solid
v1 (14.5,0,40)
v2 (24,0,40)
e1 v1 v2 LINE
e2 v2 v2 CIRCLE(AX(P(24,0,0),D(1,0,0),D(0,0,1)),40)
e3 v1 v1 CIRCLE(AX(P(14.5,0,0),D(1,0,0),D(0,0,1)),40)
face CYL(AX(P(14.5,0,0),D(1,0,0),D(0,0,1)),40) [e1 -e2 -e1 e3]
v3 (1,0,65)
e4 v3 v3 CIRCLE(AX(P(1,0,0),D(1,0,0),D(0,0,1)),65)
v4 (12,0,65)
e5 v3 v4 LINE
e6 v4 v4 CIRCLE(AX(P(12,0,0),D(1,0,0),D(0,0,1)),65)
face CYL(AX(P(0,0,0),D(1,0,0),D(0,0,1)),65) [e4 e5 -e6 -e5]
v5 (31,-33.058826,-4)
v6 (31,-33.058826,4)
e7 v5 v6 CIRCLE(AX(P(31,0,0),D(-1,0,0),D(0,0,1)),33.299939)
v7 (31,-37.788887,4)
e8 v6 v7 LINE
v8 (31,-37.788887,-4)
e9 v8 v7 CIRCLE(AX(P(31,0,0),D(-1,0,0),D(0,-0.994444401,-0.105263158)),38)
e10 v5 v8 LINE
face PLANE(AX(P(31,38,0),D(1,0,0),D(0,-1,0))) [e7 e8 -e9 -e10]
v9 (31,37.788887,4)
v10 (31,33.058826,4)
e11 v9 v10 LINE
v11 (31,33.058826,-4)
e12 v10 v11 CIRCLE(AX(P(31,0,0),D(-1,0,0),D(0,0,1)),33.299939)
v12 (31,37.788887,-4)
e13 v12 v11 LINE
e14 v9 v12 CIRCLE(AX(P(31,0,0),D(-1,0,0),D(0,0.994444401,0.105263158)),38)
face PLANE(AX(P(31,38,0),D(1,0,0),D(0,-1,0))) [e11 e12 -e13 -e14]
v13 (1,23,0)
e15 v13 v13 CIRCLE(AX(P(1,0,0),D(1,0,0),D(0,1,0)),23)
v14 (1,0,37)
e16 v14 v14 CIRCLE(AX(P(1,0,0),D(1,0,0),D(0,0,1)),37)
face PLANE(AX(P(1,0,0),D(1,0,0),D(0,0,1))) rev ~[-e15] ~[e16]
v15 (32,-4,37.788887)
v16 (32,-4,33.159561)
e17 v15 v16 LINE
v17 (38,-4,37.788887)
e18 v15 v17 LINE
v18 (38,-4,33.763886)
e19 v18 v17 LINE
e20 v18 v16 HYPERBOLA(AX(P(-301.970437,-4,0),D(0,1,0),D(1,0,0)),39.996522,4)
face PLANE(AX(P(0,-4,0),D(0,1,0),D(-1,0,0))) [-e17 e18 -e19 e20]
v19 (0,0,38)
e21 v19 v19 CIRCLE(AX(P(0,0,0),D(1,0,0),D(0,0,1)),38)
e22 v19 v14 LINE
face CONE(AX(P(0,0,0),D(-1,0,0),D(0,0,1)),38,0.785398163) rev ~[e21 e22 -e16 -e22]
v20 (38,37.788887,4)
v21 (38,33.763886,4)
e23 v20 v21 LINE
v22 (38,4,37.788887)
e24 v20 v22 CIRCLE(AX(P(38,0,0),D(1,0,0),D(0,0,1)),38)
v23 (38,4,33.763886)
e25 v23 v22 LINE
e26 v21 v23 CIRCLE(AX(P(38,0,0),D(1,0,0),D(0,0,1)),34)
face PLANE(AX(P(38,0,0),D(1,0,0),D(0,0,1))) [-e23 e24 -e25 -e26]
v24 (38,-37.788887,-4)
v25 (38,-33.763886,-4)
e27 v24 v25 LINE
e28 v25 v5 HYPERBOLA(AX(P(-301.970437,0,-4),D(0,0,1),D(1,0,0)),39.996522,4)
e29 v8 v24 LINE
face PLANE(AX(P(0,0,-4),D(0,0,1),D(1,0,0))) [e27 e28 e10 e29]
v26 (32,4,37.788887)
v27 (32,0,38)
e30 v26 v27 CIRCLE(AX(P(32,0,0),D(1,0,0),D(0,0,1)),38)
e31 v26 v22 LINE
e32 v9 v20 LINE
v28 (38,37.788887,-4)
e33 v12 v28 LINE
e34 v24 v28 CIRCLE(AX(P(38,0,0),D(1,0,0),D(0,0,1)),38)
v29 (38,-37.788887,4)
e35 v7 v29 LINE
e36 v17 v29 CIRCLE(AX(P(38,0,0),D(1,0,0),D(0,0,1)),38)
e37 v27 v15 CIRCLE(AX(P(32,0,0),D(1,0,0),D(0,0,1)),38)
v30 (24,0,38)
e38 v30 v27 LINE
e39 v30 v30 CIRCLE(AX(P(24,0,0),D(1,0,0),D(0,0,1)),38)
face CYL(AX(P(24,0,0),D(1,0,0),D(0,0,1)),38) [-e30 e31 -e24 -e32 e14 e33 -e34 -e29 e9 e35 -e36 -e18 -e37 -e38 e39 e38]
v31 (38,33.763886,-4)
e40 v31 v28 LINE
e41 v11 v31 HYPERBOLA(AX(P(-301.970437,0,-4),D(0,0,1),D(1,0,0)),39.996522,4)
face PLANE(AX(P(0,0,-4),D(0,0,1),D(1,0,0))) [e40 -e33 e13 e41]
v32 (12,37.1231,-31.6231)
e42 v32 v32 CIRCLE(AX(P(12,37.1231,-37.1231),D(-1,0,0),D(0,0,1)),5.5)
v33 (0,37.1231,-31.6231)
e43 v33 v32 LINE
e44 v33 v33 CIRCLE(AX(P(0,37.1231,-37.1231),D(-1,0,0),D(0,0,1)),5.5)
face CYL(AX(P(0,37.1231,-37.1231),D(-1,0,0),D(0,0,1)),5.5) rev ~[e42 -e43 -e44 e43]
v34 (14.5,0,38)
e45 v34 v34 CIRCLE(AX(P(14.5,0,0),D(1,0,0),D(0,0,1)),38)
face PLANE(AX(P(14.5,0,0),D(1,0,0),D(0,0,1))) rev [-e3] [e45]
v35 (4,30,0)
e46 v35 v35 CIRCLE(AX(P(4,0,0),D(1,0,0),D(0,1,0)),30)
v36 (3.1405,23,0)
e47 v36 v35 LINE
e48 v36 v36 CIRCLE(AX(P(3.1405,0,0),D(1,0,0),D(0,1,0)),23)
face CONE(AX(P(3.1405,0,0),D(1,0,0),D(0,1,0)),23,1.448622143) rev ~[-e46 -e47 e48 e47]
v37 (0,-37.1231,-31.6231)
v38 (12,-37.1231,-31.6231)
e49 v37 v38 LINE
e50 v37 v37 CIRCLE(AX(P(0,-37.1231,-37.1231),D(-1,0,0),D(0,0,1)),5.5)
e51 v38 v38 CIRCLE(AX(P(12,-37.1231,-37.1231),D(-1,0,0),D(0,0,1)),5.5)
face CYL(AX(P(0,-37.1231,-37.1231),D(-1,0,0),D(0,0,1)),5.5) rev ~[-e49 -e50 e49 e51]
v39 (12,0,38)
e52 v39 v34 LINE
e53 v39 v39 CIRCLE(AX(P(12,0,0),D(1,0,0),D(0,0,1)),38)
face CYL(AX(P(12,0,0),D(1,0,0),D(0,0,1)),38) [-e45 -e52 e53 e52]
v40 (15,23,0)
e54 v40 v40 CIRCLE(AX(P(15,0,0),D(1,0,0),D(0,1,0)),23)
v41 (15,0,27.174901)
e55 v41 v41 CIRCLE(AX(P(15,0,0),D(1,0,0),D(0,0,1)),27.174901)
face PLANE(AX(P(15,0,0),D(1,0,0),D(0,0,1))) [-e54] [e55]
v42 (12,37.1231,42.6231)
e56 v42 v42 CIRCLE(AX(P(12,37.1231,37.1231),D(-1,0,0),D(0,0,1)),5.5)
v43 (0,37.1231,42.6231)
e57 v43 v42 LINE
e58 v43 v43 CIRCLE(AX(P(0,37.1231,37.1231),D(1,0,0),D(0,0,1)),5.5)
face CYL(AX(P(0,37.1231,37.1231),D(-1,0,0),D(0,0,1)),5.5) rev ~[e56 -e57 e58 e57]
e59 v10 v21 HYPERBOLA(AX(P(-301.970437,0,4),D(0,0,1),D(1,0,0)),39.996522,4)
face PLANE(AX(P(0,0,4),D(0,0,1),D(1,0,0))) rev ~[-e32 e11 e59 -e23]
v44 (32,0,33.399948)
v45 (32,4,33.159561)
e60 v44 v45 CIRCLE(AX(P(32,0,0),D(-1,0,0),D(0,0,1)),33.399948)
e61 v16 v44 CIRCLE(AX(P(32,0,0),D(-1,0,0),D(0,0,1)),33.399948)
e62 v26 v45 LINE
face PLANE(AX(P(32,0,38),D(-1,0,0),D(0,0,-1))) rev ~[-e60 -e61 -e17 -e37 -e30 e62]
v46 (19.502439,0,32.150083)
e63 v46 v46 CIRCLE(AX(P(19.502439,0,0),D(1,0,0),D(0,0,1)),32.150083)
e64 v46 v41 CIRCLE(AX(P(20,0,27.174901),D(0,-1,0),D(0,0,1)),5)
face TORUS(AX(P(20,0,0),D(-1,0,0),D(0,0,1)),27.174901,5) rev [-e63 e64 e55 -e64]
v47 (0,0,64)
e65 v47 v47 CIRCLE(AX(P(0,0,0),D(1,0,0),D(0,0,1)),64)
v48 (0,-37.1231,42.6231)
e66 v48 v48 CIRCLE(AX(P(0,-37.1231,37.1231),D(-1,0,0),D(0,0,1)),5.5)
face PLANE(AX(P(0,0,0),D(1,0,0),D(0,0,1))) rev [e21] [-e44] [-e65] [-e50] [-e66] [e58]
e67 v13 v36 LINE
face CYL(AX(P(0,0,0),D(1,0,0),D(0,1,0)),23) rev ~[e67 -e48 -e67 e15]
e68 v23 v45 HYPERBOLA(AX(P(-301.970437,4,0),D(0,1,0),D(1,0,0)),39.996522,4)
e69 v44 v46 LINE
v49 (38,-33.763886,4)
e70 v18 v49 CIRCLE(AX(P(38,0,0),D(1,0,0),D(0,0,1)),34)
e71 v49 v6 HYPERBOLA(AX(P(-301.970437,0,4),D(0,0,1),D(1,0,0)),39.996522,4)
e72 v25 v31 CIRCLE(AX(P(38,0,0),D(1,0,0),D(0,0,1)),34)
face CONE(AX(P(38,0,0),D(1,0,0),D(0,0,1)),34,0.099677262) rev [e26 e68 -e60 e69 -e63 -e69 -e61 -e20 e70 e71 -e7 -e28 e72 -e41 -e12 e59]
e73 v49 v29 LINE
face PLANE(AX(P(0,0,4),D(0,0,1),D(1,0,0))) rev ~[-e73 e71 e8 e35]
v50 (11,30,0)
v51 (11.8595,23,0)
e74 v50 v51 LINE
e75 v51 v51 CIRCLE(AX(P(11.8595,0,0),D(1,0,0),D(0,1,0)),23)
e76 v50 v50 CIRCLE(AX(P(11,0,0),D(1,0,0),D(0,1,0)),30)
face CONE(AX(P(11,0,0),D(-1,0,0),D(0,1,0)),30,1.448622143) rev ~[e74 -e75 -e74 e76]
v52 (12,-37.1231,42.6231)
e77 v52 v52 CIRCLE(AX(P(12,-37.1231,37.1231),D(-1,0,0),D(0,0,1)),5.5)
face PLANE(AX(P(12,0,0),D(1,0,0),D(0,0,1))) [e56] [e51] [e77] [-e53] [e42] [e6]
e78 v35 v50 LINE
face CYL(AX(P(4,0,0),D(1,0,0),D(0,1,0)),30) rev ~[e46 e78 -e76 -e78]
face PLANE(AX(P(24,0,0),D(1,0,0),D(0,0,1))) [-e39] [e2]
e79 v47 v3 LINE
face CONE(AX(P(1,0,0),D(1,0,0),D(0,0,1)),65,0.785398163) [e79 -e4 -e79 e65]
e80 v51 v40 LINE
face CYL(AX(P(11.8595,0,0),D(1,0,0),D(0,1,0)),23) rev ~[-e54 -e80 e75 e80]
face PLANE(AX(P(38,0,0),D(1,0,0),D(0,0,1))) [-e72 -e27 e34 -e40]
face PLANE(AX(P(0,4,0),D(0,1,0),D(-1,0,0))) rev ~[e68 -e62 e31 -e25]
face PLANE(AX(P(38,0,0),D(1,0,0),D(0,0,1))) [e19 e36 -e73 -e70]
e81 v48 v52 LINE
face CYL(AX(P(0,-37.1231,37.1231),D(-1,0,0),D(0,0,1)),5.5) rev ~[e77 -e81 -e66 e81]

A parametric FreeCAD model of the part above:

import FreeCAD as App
import Part
import Sketcher

V = App.Vector
Q = App.Units.Quantity


def edges_at(feature, points):
    """Names of the edges that pass closest to the given points."""
    edges = feature.Shape.Edges
    near = lambda p: min(range(len(edges)), key=lambda i: edges[i].distToShape(Part.Vertex(*p))[0])
    return sorted({f"Edge{near(p) + 1}" for p in points})


def add_polygon(sketch, points):
    """Adds a closed chain of lines whose ends are joined by coincident constraints."""
    first, n = sketch.GeometryCount, len(points)
    for a, b in zip(points, points[1:] + points[:1]):
        sketch.addGeometry(Part.LineSegment(App.Vector(*a, 0), App.Vector(*b, 0)), False)
    for i in range(n):
        sketch.addConstraint(Sketcher.Constraint("Coincident", first + i, 2, first + (i + 1) % n, 1))

doc = App.newDocument("Part")
body = doc.addObject("PartDesign::Body", "Body")

sketch1 = body.newObject("Sketcher::SketchObject", "Sketch")
sketch1.AttachmentSupport = (doc.getObject("XZ_Plane"), [""])
sketch1.MapMode = "FlatFace"
add_polygon(sketch1, [(0, 38), (0, 65), (12, 65), (12, 38), (14.5, 38), (14.5, 40), (24, 40), (24, 38), (38, 38), (38, 34), (15, 31.6998), (15, 0), (1, 0), (1, 37)])
sketch1.addConstraint([
    Sketcher.Constraint("Vertical", 0),
    Sketcher.Constraint("Horizontal", 1),
    Sketcher.Constraint("Vertical", 2),
    Sketcher.Constraint("Horizontal", 3),
    Sketcher.Constraint("Vertical", 4),
    Sketcher.Constraint("Horizontal", 5),
    Sketcher.Constraint("Vertical", 6),
    Sketcher.Constraint("Horizontal", 7),
    Sketcher.Constraint("Vertical", 8),
    Sketcher.Constraint("Vertical", 10),
    Sketcher.Constraint("Horizontal", 11),
    Sketcher.Constraint("Vertical", 12),
    Sketcher.Constraint("PointOnObject", 0, 2, -2),
    Sketcher.Constraint("PointOnObject", 10, 2, -1),
    Sketcher.Constraint("Horizontal", 3, 2, 6, 2),
    Sketcher.Constraint("Horizontal", 7, 2, 13, 2),
    Sketcher.Constraint("Equal", 7, 11),
    Sketcher.Constraint("DistanceX", 1, 1, 1, 2, Q("12 mm")),
    Sketcher.Constraint("DistanceX", 3, 1, 3, 2, Q("2.5 mm")),
    Sketcher.Constraint("DistanceY", -1, 1, 0, 2, Q("65 mm")),
    Sketcher.Constraint("DistanceY", -1, 1, 2, 2, Q("38 mm")),
    Sketcher.Constraint("DistanceY", -1, 1, 4, 2, Q("40 mm")),
    Sketcher.Constraint("DistanceX", -1, 1, 7, 2, Q("38 mm")),
    Sketcher.Constraint("DistanceY", -1, 1, 8, 2, Q("34 mm")),
    Sketcher.Constraint("DistanceX", -1, 1, 9, 2, Q("15 mm")),
    Sketcher.Constraint("DistanceX", -1, 1, 11, 2, Q("1 mm")),
    Sketcher.Constraint("DistanceY", 12, 2, 2, 2, Q("1 mm")),
    Sketcher.Constraint("Angle", 9, Q("-174.289 deg")),
])
revolution = body.newObject("PartDesign::Revolution", "Revolution")
revolution.Profile = sketch1
revolution.ReferenceAxis = (sketch1, ["H_Axis"])
revolution.Angle = 360

sketch2 = body.newObject("Sketcher::SketchObject", "Sketch001")
sketch2.AttachmentSupport = (doc.getObject("XZ_Plane"), [""])
sketch2.MapMode = "FlatFace"
add_polygon(sketch2, [(32, -20), (32, 38), (39, 38), (39, -20)])
sketch2.addConstraint([
    Sketcher.Constraint("Vertical", 0),
    Sketcher.Constraint("Horizontal", 1),
    Sketcher.Constraint("Vertical", 2),
    Sketcher.Constraint("Horizontal", 3),
    Sketcher.Constraint("DistanceX", 1, 1, 1, 2, Q("7 mm")),
    Sketcher.Constraint("DistanceY", 0, 1, 0, 2, Q("58 mm")),
    Sketcher.Constraint("DistanceX", -1, 1, 0, 2, Q("32 mm")),
    Sketcher.Constraint("DistanceY", -1, 1, 0, 2, Q("38 mm")),
])
pocket1 = body.newObject("PartDesign::Pocket", "Pocket")
pocket1.Profile = sketch2
pocket1.Length = 8
pocket1.Midplane = True

sketch3 = body.newObject("Sketcher::SketchObject", "Sketch002")
sketch3.AttachmentSupport = (doc.getObject("XY_Plane"), [""])
sketch3.MapMode = "FlatFace"
add_polygon(sketch3, [(38, -38), (38, 38), (31, 38), (31, -38)])
sketch3.addConstraint([
    Sketcher.Constraint("Vertical", 0),
    Sketcher.Constraint("Horizontal", 1),
    Sketcher.Constraint("Vertical", 2),
    Sketcher.Constraint("Horizontal", 3),
    Sketcher.Constraint("DistanceX", 1, 2, 1, 1, Q("7 mm")),
    Sketcher.Constraint("DistanceY", 0, 1, 0, 2, Q("76 mm")),
    Sketcher.Constraint("DistanceX", -1, 1, 0, 2, Q("38 mm")),
    Sketcher.Constraint("DistanceY", -1, 1, 0, 2, Q("38 mm")),
])
pocket2 = body.newObject("PartDesign::Pocket", "Pocket001")
pocket2.Profile = sketch3
pocket2.Length = 8
pocket2.Midplane = True

sketch4 = body.newObject("Sketcher::SketchObject", "Sketch003")
sketch4.AttachmentSupport = (doc.getObject("YZ_Plane"), [""])
sketch4.MapMode = "FlatFace"
sketch4.addGeometry([
    Part.Circle(V(37.1231, 37.1231, 0), V(0, 0, 1), 5.5),
    Part.Circle(V(37.1231, -37.1231, 0), V(0, 0, 1), 5.5),
    Part.Circle(V(-37.1231, -37.1231, 0), V(0, 0, 1), 5.5),
    Part.Circle(V(-37.1231, 37.1231, 0), V(0, 0, 1), 5.5),
], False)
sketch4.addConstraint([
    Sketcher.Constraint("Equal", 0, 1),
    Sketcher.Constraint("Equal", 1, 2),
    Sketcher.Constraint("Equal", 2, 3),
    Sketcher.Constraint("Symmetric", 0, 3, 2, 3, -1, 1),
    Sketcher.Constraint("Symmetric", 1, 3, 3, 3, -1, 1),
    Sketcher.Constraint("Symmetric", 1, 3, 2, 3, -2),
    Sketcher.Constraint("Diameter", 0, Q("11 mm")),
    Sketcher.Constraint("DistanceX", -1, 1, 0, 3, Q("37.123 mm")),
    Sketcher.Constraint("DistanceY", -1, 1, 0, 3, Q("37.123 mm")),
])
pocket3 = body.newObject("PartDesign::Pocket", "Pocket002")
pocket3.Profile = sketch4
pocket3.Length = 12
pocket3.Reversed = True
doc.recompute()

chamfer = body.newObject("PartDesign::Chamfer", "Chamfer")
chamfer.Base = (pocket3, edges_at(pocket3, [(0, 0, -65)]))
chamfer.Size = 1
doc.recompute()

fillet = body.newObject("PartDesign::Fillet", "Fillet")
fillet.Base = (chamfer, edges_at(chamfer, [(15, 0, -31.7)]))
fillet.Radius = 5

sketch5 = body.newObject("Sketcher::SketchObject", "Sketch004")
sketch5.AttachmentSupport = (doc.getObject("XY_Plane"), [""])
sketch5.MapMode = "FlatFace"
add_polygon(sketch5, [(0, 23), (0, 0), (15, 0), (15, 23), (11.8595, 23), (11, 30), (4, 30), (3.1405, 23)])
sketch5.addConstraint([
    Sketcher.Constraint("Vertical", 0),
    Sketcher.Constraint("Horizontal", 1),
    Sketcher.Constraint("Vertical", 2),
    Sketcher.Constraint("Horizontal", 3),
    Sketcher.Constraint("Horizontal", 5),
    Sketcher.Constraint("Horizontal", 7),
    Sketcher.Constraint("Coincident", 0, 2, -1, 1),
    Sketcher.Constraint("Horizontal", 3, 2, 6, 2),
    Sketcher.Constraint("Equal", 3, 7),
    Sketcher.Constraint("Equal", 4, 6),
    Sketcher.Constraint("DistanceX", 5, 2, 5, 1, Q("7 mm")),
    Sketcher.Constraint("DistanceY", 0, 2, 0, 1, Q("23 mm")),
    Sketcher.Constraint("DistanceY", -1, 1, 4, 2, Q("30 mm")),
    Sketcher.Constraint("DistanceX", 1, 1, 1, 2, Q("15 mm")),
    Sketcher.Constraint("Angle", 4, Q("97 deg")),
])
groove = body.newObject("PartDesign::Groove", "Groove")
groove.Profile = sketch5
groove.ReferenceAxis = (sketch5, ["H_Axis"])
groove.Angle = 360

doc.recompute()
